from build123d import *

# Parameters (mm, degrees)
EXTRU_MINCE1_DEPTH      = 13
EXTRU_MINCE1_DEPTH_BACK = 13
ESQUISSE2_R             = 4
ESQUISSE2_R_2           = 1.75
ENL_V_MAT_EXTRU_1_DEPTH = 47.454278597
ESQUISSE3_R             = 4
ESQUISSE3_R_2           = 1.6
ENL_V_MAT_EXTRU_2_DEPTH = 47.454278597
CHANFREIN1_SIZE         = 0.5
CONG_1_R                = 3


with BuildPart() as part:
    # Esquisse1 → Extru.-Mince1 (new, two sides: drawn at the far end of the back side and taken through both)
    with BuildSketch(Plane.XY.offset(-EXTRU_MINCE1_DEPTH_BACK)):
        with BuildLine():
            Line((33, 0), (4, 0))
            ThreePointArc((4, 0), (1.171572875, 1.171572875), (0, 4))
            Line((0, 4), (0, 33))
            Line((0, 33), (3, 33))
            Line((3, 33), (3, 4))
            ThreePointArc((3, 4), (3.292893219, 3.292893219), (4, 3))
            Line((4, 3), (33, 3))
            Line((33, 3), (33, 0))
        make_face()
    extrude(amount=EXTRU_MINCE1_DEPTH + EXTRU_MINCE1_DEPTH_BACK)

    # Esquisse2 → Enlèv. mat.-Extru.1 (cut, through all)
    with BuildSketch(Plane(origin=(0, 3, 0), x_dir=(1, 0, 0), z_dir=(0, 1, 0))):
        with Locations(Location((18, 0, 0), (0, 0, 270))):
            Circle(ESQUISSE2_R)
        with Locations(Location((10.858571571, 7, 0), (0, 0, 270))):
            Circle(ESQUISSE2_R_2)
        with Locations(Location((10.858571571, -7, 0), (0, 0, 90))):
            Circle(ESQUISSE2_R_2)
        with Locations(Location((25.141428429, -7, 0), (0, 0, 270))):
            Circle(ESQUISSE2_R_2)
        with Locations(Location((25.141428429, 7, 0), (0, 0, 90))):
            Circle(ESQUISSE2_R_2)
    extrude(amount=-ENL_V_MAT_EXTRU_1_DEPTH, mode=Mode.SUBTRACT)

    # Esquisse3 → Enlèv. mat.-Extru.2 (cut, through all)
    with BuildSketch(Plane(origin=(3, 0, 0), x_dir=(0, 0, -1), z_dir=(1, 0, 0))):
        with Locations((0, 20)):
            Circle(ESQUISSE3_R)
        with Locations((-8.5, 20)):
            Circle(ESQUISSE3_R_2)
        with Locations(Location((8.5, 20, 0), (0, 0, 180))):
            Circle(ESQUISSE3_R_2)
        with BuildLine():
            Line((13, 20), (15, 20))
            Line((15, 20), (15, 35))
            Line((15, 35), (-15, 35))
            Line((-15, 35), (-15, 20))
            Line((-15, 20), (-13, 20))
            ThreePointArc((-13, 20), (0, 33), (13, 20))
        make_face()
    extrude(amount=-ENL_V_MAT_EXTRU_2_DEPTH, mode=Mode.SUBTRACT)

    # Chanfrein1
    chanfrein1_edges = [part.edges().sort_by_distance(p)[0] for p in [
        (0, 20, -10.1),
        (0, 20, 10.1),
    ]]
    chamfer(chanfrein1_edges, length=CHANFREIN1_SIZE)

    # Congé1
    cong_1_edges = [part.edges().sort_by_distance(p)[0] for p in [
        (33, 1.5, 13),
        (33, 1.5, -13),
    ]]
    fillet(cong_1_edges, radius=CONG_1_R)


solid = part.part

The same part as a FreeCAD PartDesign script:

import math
import FreeCAD as App
import Part
import Sketcher


def edges_at(feature, points):
    """Names of the edges that pass closest to the given points."""
    edges = feature.Shape.Edges
    near = lambda p: min(range(len(edges)), key=lambda i: edges[i].distToShape(Part.Vertex(*p))[0])
    return sorted({f"Edge{near(p) + 1}" for p in points})

doc = App.newDocument("Part")
body = doc.addObject("PartDesign::Body", "Body")

sketch1 = doc.addObject("Sketcher::SketchObject", "Sketch")
body.addObject(sketch1)
sketch1.AttachmentSupport = (doc.XY_Plane, [""])
sketch1.MapMode = "FlatFace"
sketch1.addGeometry(Part.LineSegment(App.Vector(4, 0, 0), App.Vector(33, 0, 0)), False)
sketch1.addGeometry(Part.LineSegment(App.Vector(33, 0, 0), App.Vector(33, 3, 0)), False)
sketch1.addGeometry(Part.LineSegment(App.Vector(33, 3, 0), App.Vector(4, 3, 0)), False)
sketch1.addGeometry(Part.ArcOfCircle(Part.Circle(App.Vector(4, 4, 0), App.Vector(0, 0, 1), 1), math.radians(-180), math.radians(-90)), False)
sketch1.addGeometry(Part.LineSegment(App.Vector(3, 4, 0), App.Vector(3, 33, 0)), False)
sketch1.addGeometry(Part.LineSegment(App.Vector(3, 33, 0), App.Vector(0, 33, 0)), False)
sketch1.addGeometry(Part.LineSegment(App.Vector(0, 33, 0), App.Vector(0, 4, 0)), False)
sketch1.addGeometry(Part.ArcOfCircle(Part.Circle(App.Vector(4, 4, 0), App.Vector(0, 0, 1), 4), math.radians(180), math.radians(270)), False)
sketch1.addConstraint(Sketcher.Constraint("Coincident", 0, 2, 1, 1))
sketch1.addConstraint(Sketcher.Constraint("Coincident", 1, 2, 2, 1))
sketch1.addConstraint(Sketcher.Constraint("Tangent", 2, 2, 3, 2))
sketch1.addConstraint(Sketcher.Constraint("Tangent", 3, 1, 4, 1))
sketch1.addConstraint(Sketcher.Constraint("Coincident", 4, 2, 5, 1))
sketch1.addConstraint(Sketcher.Constraint("Coincident", 5, 2, 6, 1))
sketch1.addConstraint(Sketcher.Constraint("Tangent", 6, 2, 7, 1))
sketch1.addConstraint(Sketcher.Constraint("Tangent", 7, 2, 0, 1))
sketch1.addConstraint(Sketcher.Constraint("Horizontal", 0))
sketch1.addConstraint(Sketcher.Constraint("Vertical", 1))
sketch1.addConstraint(Sketcher.Constraint("Horizontal", 2))
sketch1.addConstraint(Sketcher.Constraint("Vertical", 4))
sketch1.addConstraint(Sketcher.Constraint("Horizontal", 5))
sketch1.addConstraint(Sketcher.Constraint("Vertical", 6))
sketch1.addConstraint(Sketcher.Constraint("Coincident", 7, 3, 3, 3))
sketch1.addConstraint(Sketcher.Constraint("PointOnObject", 0, 2, -1))
sketch1.addConstraint(Sketcher.Constraint("PointOnObject", 5, 2, -2))
sketch1.addConstraint(Sketcher.Constraint("Equal", 2, 4))
sketch1.addConstraint(Sketcher.Constraint("Radius", 3, 1.0))
sketch1.addConstraint(Sketcher.Constraint("Radius", 7, 4.0))
sketch1.addConstraint(Sketcher.Constraint("DistanceX", 0, 1, 0, 2, 29.0))
pad1 = doc.addObject("PartDesign::Pad", "Pad")
body.addObject(pad1)
pad1.Profile = sketch1
pad1.Type = "TwoLengths"
pad1.Length = 13
pad1.Length2 = 13

sketch2 = doc.addObject("Sketcher::SketchObject", "Sketch001")
body.addObject(sketch2)
sketch2.AttachmentSupport = (doc.XZ_Plane, [""])
sketch2.MapMode = "FlatFace"
sketch2.AttachmentOffset = App.Placement(App.Vector(0, 0, -3), App.Rotation())
sketch2.addGeometry(Part.Circle(App.Vector(18, 0, 0), App.Vector(0, 0, 1), 4), False)
sketch2.addGeometry(Part.Circle(App.Vector(10.9, -7, 0), App.Vector(0, 0, 1), 1.8), False)
sketch2.addGeometry(Part.Circle(App.Vector(10.9, 7, 0), App.Vector(0, 0, 1), 1.8), False)
sketch2.addGeometry(Part.Circle(App.Vector(25.1, 7, 0), App.Vector(0, 0, 1), 1.8), False)
sketch2.addGeometry(Part.Circle(App.Vector(25.1, -7, 0), App.Vector(0, 0, 1), 1.8), False)
sketch2.addConstraint(Sketcher.Constraint("Equal", 1, 2))
sketch2.addConstraint(Sketcher.Constraint("Equal", 2, 3))
sketch2.addConstraint(Sketcher.Constraint("Equal", 3, 4))
sketch2.addConstraint(Sketcher.Constraint("Symmetric", 1, 3, 2, 3, -1))
sketch2.addConstraint(Sketcher.Constraint("Symmetric", 3, 3, 4, 3, -1))
sketch2.addConstraint(Sketcher.Constraint("PointOnObject", 0, 3, -1))
sketch2.addConstraint(Sketcher.Constraint("Horizontal", 2, 3, 3, 3))
sketch2.addConstraint(Sketcher.Constraint("Diameter", 0, 8.0))
sketch2.addConstraint(Sketcher.Constraint("Diameter", 1, 3.5))
sketch2.addConstraint(Sketcher.Constraint("DistanceX", -1, 1, 0, 3, 18.0))
sketch2.addConstraint(Sketcher.Constraint("DistanceY", 1, 3, -1, 1, 7.0))
sketch2.addConstraint(Sketcher.Constraint("DistanceX", -1, 1, 1, 3, 10.858572))
sketch2.addConstraint(Sketcher.Constraint("DistanceX", -1, 1, 3, 3, 25.141428))
pocket1 = doc.addObject("PartDesign::Pocket", "Pocket")
body.addObject(pocket1)
pocket1.Profile = sketch2
pocket1.Type = "ThroughAll"
pocket1.Reversed = True

sketch3 = doc.addObject("Sketcher::SketchObject", "Sketch002")
body.addObject(sketch3)
sketch3.AttachmentSupport = (doc.YZ_Plane, [""])
sketch3.MapMode = "FlatFace"
sketch3.AttachmentOffset = App.Placement(App.Vector(0, 0, 3), App.Rotation())
sketch3.addGeometry(Part.Circle(App.Vector(20, 0, 0), App.Vector(0, 0, 1), 4), False)
sketch3.addGeometry(Part.Circle(App.Vector(20, 8.5, 0), App.Vector(0, 0, 1), 1.6), False)
sketch3.addGeometry(Part.Circle(App.Vector(20, -8.5, 0), App.Vector(0, 0, 1), 1.6), False)
sketch3.addGeometry(Part.LineSegment(App.Vector(20, -13, 0), App.Vector(20, -15, 0)), False)
sketch3.addGeometry(Part.LineSegment(App.Vector(20, -15, 0), App.Vector(35, -15, 0)), False)
sketch3.addGeometry(Part.LineSegment(App.Vector(35, -15, 0), App.Vector(35, 15, 0)), False)
sketch3.addGeometry(Part.LineSegment(App.Vector(35, 15, 0), App.Vector(20, 15, 0)), False)
sketch3.addGeometry(Part.LineSegment(App.Vector(20, 15, 0), App.Vector(20, 13, 0)), False)
sketch3.addGeometry(Part.ArcOfCircle(Part.Circle(App.Vector(20, 0, 0), App.Vector(0, 0, 1), 13), math.radians(-90), math.radians(90)), False)
sketch3.addConstraint(Sketcher.Constraint("Coincident", 3, 2, 4, 1))
sketch3.addConstraint(Sketcher.Constraint("Coincident", 4, 2, 5, 1))
sketch3.addConstraint(Sketcher.Constraint("Coincident", 5, 2, 6, 1))
sketch3.addConstraint(Sketcher.Constraint("Coincident", 6, 2, 7, 1))
sketch3.addConstraint(Sketcher.Constraint("Coincident", 7, 2, 8, 2))
sketch3.addConstraint(Sketcher.Constraint("Coincident", 8, 1, 3, 1))
sketch3.addConstraint(Sketcher.Constraint("Vertical", 3))
sketch3.addConstraint(Sketcher.Constraint("Horizontal", 4))
sketch3.addConstraint(Sketcher.Constraint("Vertical", 5))
sketch3.addConstraint(Sketcher.Constraint("Horizontal", 6))
sketch3.addConstraint(Sketcher.Constraint("Vertical", 7))
sketch3.addConstraint(Sketcher.Constraint("Coincident", 8, 3, 0, 3))
sketch3.addConstraint(Sketcher.Constraint("Equal", 1, 2))
sketch3.addConstraint(Sketcher.Constraint("Symmetric", 1, 3, 2, 3, -1))
sketch3.addConstraint(Sketcher.Constraint("Symmetric", 3, 2, 6, 2, -1))
sketch3.addConstraint(Sketcher.Constraint("PointOnObject", 0, 3, -1))
sketch3.addConstraint(Sketcher.Constraint("Vertical", 0, 3, 1, 3))
sketch3.addConstraint(Sketcher.Constraint("Vertical", 8, 3, 3, 2))
sketch3.addConstraint(Sketcher.Constraint("Diameter", 0, 8.0))
sketch3.addConstraint(Sketcher.Constraint("Radius", 8, 13.0))
sketch3.addConstraint(Sketcher.Constraint("Diameter", 1, 3.2))
sketch3.addConstraint(Sketcher.Constraint("DistanceX", 4, 1, 4, 2, 15.0))
sketch3.addConstraint(Sketcher.Constraint("DistanceY", 3, 2, 3, 1, 2.0))
sketch3.addConstraint(Sketcher.Constraint("DistanceX", -1, 1, 0, 3, 20.0))
sketch3.addConstraint(Sketcher.Constraint("DistanceY", 2, 3, 1, 3, 17.0))
pocket2 = doc.addObject("PartDesign::Pocket", "Pocket001")
body.addObject(pocket2)
pocket2.Profile = sketch3
pocket2.Type = "ThroughAll"
doc.recompute()

chamfer = doc.addObject("PartDesign::Chamfer", "Chamfer")
body.addObject(chamfer)
chamfer.Base = (pocket2, edges_at(pocket2, [(0, 20, -10.1), (0, 20, 10.1)]))
chamfer.Size = 0.5
doc.recompute()

fillet = doc.addObject("PartDesign::Fillet", "Fillet")
body.addObject(fillet)
fillet.Base = (chamfer, edges_at(chamfer, [(33, 1.5, 13), (33, 1.5, -13)]))
fillet.Radius = 3

doc.recompute()
